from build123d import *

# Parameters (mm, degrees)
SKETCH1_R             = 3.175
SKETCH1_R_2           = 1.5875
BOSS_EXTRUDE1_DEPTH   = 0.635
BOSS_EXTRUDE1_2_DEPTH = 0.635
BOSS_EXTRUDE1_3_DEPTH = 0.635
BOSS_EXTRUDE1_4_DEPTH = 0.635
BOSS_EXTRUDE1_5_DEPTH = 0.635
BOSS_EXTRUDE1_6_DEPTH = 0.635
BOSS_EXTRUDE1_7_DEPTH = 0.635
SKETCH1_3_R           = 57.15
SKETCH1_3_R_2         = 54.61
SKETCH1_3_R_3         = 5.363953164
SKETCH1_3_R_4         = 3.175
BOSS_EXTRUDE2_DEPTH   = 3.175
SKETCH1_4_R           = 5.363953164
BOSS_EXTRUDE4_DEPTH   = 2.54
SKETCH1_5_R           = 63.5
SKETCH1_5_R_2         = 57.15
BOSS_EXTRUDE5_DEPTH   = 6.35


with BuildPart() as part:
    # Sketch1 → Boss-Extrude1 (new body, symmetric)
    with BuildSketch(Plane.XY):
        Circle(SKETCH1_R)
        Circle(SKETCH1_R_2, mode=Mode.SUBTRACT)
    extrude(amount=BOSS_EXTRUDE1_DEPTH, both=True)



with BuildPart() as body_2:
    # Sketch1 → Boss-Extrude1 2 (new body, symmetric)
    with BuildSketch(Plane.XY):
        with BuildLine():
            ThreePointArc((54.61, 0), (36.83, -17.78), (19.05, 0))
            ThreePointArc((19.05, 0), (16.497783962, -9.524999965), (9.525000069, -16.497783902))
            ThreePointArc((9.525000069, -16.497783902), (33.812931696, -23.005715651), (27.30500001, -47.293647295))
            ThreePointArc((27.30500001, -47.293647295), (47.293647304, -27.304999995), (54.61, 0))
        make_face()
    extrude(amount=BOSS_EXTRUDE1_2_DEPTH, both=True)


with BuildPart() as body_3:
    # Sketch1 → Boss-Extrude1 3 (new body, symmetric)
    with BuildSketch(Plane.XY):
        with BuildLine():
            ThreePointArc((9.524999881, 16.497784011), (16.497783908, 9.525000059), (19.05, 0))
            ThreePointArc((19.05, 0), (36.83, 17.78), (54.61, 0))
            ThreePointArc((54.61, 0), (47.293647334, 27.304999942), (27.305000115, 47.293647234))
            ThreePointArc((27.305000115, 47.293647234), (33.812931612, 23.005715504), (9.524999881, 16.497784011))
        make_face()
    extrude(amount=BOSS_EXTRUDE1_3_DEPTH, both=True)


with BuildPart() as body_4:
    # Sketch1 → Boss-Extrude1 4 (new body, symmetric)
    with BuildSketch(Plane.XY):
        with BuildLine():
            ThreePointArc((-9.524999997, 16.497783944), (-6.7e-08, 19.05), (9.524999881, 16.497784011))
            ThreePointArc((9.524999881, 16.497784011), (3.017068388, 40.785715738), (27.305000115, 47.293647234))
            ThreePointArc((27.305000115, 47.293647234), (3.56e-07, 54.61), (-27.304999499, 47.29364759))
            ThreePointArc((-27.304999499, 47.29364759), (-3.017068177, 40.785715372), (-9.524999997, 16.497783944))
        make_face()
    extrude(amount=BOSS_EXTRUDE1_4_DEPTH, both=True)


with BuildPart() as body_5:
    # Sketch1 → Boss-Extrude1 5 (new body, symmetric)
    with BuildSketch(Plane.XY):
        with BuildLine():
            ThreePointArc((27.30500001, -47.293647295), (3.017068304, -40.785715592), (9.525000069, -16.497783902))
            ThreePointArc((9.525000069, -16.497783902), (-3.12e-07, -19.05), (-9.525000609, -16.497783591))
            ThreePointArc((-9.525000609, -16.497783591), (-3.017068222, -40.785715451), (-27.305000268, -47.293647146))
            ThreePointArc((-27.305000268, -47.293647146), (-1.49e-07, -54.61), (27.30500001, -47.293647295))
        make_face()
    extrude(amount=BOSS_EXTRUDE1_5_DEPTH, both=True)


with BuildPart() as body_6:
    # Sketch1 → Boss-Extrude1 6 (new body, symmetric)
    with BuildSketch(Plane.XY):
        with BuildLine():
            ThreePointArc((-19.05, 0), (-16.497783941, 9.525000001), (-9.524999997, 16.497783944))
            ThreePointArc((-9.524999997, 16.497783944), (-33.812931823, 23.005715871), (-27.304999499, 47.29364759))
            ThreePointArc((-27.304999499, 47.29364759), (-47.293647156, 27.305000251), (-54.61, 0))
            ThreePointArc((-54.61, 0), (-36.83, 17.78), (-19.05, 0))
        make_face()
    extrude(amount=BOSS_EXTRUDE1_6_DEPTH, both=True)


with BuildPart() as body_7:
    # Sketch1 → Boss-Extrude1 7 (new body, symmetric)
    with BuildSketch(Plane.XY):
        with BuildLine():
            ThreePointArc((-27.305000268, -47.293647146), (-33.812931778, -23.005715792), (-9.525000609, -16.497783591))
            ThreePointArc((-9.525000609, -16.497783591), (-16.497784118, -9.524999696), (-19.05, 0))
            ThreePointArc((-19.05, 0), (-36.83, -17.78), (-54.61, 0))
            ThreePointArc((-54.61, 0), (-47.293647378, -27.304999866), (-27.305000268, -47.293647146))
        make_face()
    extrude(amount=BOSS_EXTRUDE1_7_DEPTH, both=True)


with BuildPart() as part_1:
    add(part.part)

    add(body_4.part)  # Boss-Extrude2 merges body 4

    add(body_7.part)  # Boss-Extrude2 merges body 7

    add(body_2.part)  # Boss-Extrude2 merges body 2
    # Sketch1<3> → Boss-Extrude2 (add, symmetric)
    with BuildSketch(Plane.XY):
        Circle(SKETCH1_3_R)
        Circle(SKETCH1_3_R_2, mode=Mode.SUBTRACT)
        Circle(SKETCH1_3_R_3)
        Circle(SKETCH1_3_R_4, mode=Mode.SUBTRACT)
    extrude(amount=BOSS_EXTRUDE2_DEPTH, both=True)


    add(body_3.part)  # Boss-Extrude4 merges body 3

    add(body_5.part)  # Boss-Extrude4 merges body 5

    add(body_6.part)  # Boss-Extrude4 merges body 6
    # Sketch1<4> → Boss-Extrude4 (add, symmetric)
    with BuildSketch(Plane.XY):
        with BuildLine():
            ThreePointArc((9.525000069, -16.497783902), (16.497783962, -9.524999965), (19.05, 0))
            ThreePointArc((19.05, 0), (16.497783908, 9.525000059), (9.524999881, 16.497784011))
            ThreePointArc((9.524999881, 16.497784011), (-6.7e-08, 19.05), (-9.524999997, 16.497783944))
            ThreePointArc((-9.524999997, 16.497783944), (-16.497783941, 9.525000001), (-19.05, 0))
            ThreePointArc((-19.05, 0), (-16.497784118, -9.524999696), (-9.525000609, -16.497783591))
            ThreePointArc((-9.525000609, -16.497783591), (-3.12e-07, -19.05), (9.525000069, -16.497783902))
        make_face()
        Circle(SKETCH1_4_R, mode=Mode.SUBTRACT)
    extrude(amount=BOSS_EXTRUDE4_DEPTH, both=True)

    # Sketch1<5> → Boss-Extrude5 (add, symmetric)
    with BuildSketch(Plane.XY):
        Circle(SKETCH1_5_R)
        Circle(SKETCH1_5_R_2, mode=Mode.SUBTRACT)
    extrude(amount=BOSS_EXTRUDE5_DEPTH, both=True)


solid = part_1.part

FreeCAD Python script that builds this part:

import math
import FreeCAD as App
import Part
import Sketcher
from FreeCAD import Vector
Q = App.Units.Quantity

doc = App.newDocument("Part")
params = doc.addObject("Spreadsheet::Sheet", "Params")
for row, (alias, value) in enumerate([
    ("sketch1_diameter", "0.25 in"),
    ("sketch1_diameter2", "0.125 in"),
    ("pad1_length", "0.05 in"),
    ("sketch2_radius", "0.7 in"),
    ("sketch2_radius2", "0.75 in"),
    ("pad2_length", "0.05 in"),
    ("sketch3_radius", "0.7 in"),
    ("sketch3_radius2", "0.75 in"),
    ("pad3_length", "0.05 in"),
    ("sketch4_radius", "0.7 in"),
    ("sketch4_radius2", "0.75 in"),
    ("pad4_length", "0.05 in"),
    ("sketch5_radius", "0.7 in"),
    ("sketch5_radius2", "0.75 in"),
    ("pad5_length", "0.05 in"),
    ("sketch6_radius", "0.7 in"),
    ("sketch6_radius2", "0.75 in"),
    ("pad6_length", "0.05 in"),
    ("sketch7_radius", "0.7 in"),
    ("sketch7_radius2", "0.75 in"),
    ("pad7_length", "0.05 in"),
    ("sketch8_diameter", "4.5 in"),
    ("sketch8_diameter2", "4.3 in"),
    ("sketch8_diameter3", "0.25 in"),
    ("pad8_length", "0.25 in"),
    ("sketch9_radius", "0.75 in"),
    ("pad9_length", "0.2 in"),
    ("sketch10_diameter", "5 in"),
    ("sketch10_diameter2", "4.5 in"),
    ("pad10_length", "0.5 in"),
], start=1):
    params.set(f"A{row}", alias)
    params.set(f"B{row}", "=" + value)
    params.setAlias(f"B{row}", alias)

body = doc.addObject("PartDesign::Body", "Body")

# Sketch on XY plane
sketch1 = doc.addObject("Sketcher::SketchObject", "Sketch")
body.addObject(sketch1)
sketch1.AttachmentSupport = (doc.XY_Plane, [""])
sketch1.MapMode = "FlatFace"
sketch1.addGeometry(Part.Circle(Vector(0, 0, 0), Vector(0, 0, 1), 3.2), False)
sketch1.addGeometry(Part.Circle(Vector(0, 0, 0), Vector(0, 0, 1), 1.6), False)
sketch1.addConstraint(Sketcher.Constraint("Coincident", 0, 3, -1, 1))
sketch1.addConstraint(Sketcher.Constraint("Coincident", 1, 3, -1, 1))
sketch1.addConstraint(Sketcher.Constraint("Diameter", 0, Q("0.25 in")))
sketch1.addConstraint(Sketcher.Constraint("Diameter", 1, Q("0.125 in")))
sketch1.setExpression("Constraints[2]", "Params.sketch1_diameter")
sketch1.setExpression("Constraints[3]", "Params.sketch1_diameter2")
pad1 = doc.addObject("PartDesign::Pad", "Pad")
body.addObject(pad1)
pad1.Profile = sketch1
pad1.setExpression("Length", "Params.pad1_length")
pad1.Midplane = True
body2 = doc.addObject("PartDesign::Body", "Body001")

# Sketch on XY plane
sketch2 = doc.addObject("Sketcher::SketchObject", "Sketch001")
body2.addObject(sketch2)
sketch2.AttachmentSupport = (doc.getObject("XY_Plane001"), [""])
sketch2.MapMode = "FlatFace"
sketch2.addGeometry(Part.ArcOfCircle(Part.Circle(Vector(37, 0, 0), Vector(0, 0, 1), 18), math.radians(180), math.radians(360)), False)
sketch2.addGeometry(Part.ArcOfCircle(Part.Circle(Vector(0, 0, 0), Vector(0, 0, 1), 19), math.radians(-60), math.radians(0)), False)
sketch2.addGeometry(Part.ArcOfCircle(Part.Circle(Vector(18, -32, 0), Vector(0, 0, 1), 18), math.radians(-60), math.radians(120)), False)
sketch2.addGeometry(Part.ArcOfCircle(Part.Circle(Vector(0, 0, 0), Vector(0, 0, 1), 55), math.radians(-60), math.radians(0)), False)
sketch2.addConstraint(Sketcher.Constraint("Tangent", 0, 1, 1, 2))
sketch2.addConstraint(Sketcher.Constraint("Tangent", 1, 1, 2, 2))
sketch2.addConstraint(Sketcher.Constraint("Tangent", 2, 1, 3, 1))
sketch2.addConstraint(Sketcher.Constraint("Tangent", 3, 2, 0, 2))
sketch2.addConstraint(Sketcher.Constraint("Coincident", 1, 3, -1, 1))
sketch2.addConstraint(Sketcher.Constraint("Coincident", 3, 3, -1, 1))
sketch2.addConstraint(Sketcher.Constraint("PointOnObject", 0, 3, -1))
sketch2.addConstraint(Sketcher.Constraint("Radius", 0, Q("0.7 in")))
sketch2.addConstraint(Sketcher.Constraint("Radius", 1, Q("0.75 in")))
sketch2.addConstraint(Sketcher.Constraint("DistanceX", 1, 1, 2, 1, Q("0.7 in")))
sketch2.setExpression("Constraints[7]", "Params.sketch2_radius")
sketch2.setExpression("Constraints[8]", "Params.sketch2_radius2")
pad2 = doc.addObject("PartDesign::Pad", "Pad001")
body2.addObject(pad2)
pad2.Profile = sketch2
pad2.setExpression("Length", "Params.pad2_length")
pad2.Midplane = True
body3 = doc.addObject("PartDesign::Body", "Body002")

# Sketch on XY plane
sketch3 = doc.addObject("Sketcher::SketchObject", "Sketch002")
body3.addObject(sketch3)
sketch3.AttachmentSupport = (doc.getObject("XY_Plane002"), [""])
sketch3.MapMode = "FlatFace"
sketch3.addGeometry(Part.ArcOfCircle(Part.Circle(Vector(0, 0, 0), Vector(0, 0, 1), 19), math.radians(0), math.radians(60)), False)
sketch3.addGeometry(Part.ArcOfCircle(Part.Circle(Vector(37, 0, 0), Vector(0, 0, 1), 18), math.radians(0), math.radians(180)), False)
sketch3.addGeometry(Part.ArcOfCircle(Part.Circle(Vector(0, 0, 0), Vector(0, 0, 1), 55), math.radians(0), math.radians(60)), False)
sketch3.addGeometry(Part.ArcOfCircle(Part.Circle(Vector(18, 32, 0), Vector(0, 0, 1), 18), math.radians(-120), math.radians(60)), False)
sketch3.addConstraint(Sketcher.Constraint("Tangent", 0, 1, 1, 2))
sketch3.addConstraint(Sketcher.Constraint("Tangent", 1, 1, 2, 1))
sketch3.addConstraint(Sketcher.Constraint("Tangent", 2, 2, 3, 2))
sketch3.addConstraint(Sketcher.Constraint("Tangent", 3, 1, 0, 2))
sketch3.addConstraint(Sketcher.Constraint("Coincident", 0, 3, -1, 1))
sketch3.addConstraint(Sketcher.Constraint("Coincident", 2, 3, -1, 1))
sketch3.addConstraint(Sketcher.Constraint("PointOnObject", 1, 3, -1))
sketch3.addConstraint(Sketcher.Constraint("Radius", 1, Q("0.7 in")))
sketch3.addConstraint(Sketcher.Constraint("Radius", 0, Q("0.75 in")))
sketch3.addConstraint(Sketcher.Constraint("DistanceX", 3, 3, 2, 2, Q("0.35 in")))
sketch3.setExpression("Constraints[7]", "Params.sketch3_radius")
sketch3.setExpression("Constraints[8]", "Params.sketch3_radius2")
pad3 = doc.addObject("PartDesign::Pad", "Pad002")
body3.addObject(pad3)
pad3.Profile = sketch3
pad3.setExpression("Length", "Params.pad3_length")
pad3.Midplane = True
body4 = doc.addObject("PartDesign::Body", "Body003")

# Sketch on XY plane
sketch4 = doc.addObject("Sketcher::SketchObject", "Sketch003")
body4.addObject(sketch4)
sketch4.AttachmentSupport = (doc.getObject("XY_Plane003"), [""])
sketch4.MapMode = "FlatFace"
sketch4.addGeometry(Part.ArcOfCircle(Part.Circle(Vector(0, 0, 0), Vector(0, 0, 1), 19), math.radians(60), math.radians(120)), False)
sketch4.addGeometry(Part.ArcOfCircle(Part.Circle(Vector(18, 32, 0), Vector(0, 0, 1), 18), math.radians(60), math.radians(240)), False)
sketch4.addGeometry(Part.ArcOfCircle(Part.Circle(Vector(0, 0, 0), Vector(0, 0, 1), 55), math.radians(60), math.radians(120)), False)
sketch4.addGeometry(Part.ArcOfCircle(Part.Circle(Vector(-18, 32, 0), Vector(0, 0, 1), 18), math.radians(-60), math.radians(120)), False)
sketch4.addConstraint(Sketcher.Constraint("Tangent", 0, 1, 1, 2))
sketch4.addConstraint(Sketcher.Constraint("Tangent", 1, 1, 2, 1))
sketch4.addConstraint(Sketcher.Constraint("Tangent", 2, 2, 3, 2))
sketch4.addConstraint(Sketcher.Constraint("Tangent", 3, 1, 0, 2))
sketch4.addConstraint(Sketcher.Constraint("Coincident", 0, 3, -1, 1))
sketch4.addConstraint(Sketcher.Constraint("Coincident", 2, 3, -1, 1))
sketch4.addConstraint(Sketcher.Constraint("Horizontal", 1, 3, 3, 3))
sketch4.addConstraint(Sketcher.Constraint("Radius", 1, Q("0.7 in")))
sketch4.addConstraint(Sketcher.Constraint("Radius", 0, Q("0.75 in")))
sketch4.addConstraint(Sketcher.Constraint("DistanceX", 3, 3, 0, 1, Q("1.1 in")))
sketch4.setExpression("Constraints[7]", "Params.sketch4_radius")
sketch4.setExpression("Constraints[8]", "Params.sketch4_radius2")
pad4 = doc.addObject("PartDesign::Pad", "Pad003")
body4.addObject(pad4)
pad4.Profile = sketch4
pad4.setExpression("Length", "Params.pad4_length")
pad4.Midplane = True
body5 = doc.addObject("PartDesign::Body", "Body004")

# Sketch on XY plane
sketch5 = doc.addObject("Sketcher::SketchObject", "Sketch004")
body5.addObject(sketch5)
sketch5.AttachmentSupport = (doc.getObject("XY_Plane004"), [""])
sketch5.MapMode = "FlatFace"
sketch5.addGeometry(Part.ArcOfCircle(Part.Circle(Vector(18, -32, 0), Vector(0, 0, 1), 18), math.radians(120), math.radians(300)), False)
sketch5.addGeometry(Part.ArcOfCircle(Part.Circle(Vector(0, 0, 0), Vector(0, 0, 1), 19), math.radians(-120), math.radians(-60)), False)
sketch5.addGeometry(Part.ArcOfCircle(Part.Circle(Vector(-18, -32, 0), Vector(0, 0, 1), 18), math.radians(-120), math.radians(60)), False)
sketch5.addGeometry(Part.ArcOfCircle(Part.Circle(Vector(0, 0, 0), Vector(0, 0, 1), 55), math.radians(-120), math.radians(-60)), False)
sketch5.addConstraint(Sketcher.Constraint("Tangent", 0, 1, 1, 2))
sketch5.addConstraint(Sketcher.Constraint("Tangent", 1, 1, 2, 2))
sketch5.addConstraint(Sketcher.Constraint("Tangent", 2, 1, 3, 1))
sketch5.addConstraint(Sketcher.Constraint("Tangent", 3, 2, 0, 2))
sketch5.addConstraint(Sketcher.Constraint("Coincident", 1, 3, -1, 1))
sketch5.addConstraint(Sketcher.Constraint("Coincident", 3, 3, -1, 1))
sketch5.addConstraint(Sketcher.Constraint("Horizontal", 0, 3, 2, 3))
sketch5.addConstraint(Sketcher.Constraint("Radius", 0, Q("0.7 in")))
sketch5.addConstraint(Sketcher.Constraint("Radius", 1, Q("0.75 in")))
sketch5.addConstraint(Sketcher.Constraint("DistanceX", 2, 3, 0, 1, Q("1.1 in")))
sketch5.setExpression("Constraints[7]", "Params.sketch5_radius")
sketch5.setExpression("Constraints[8]", "Params.sketch5_radius2")
pad5 = doc.addObject("PartDesign::Pad", "Pad004")
body5.addObject(pad5)
pad5.Profile = sketch5
pad5.setExpression("Length", "Params.pad5_length")
pad5.Midplane = True
body6 = doc.addObject("PartDesign::Body", "Body005")

# Sketch on XY plane
sketch6 = doc.addObject("Sketcher::SketchObject", "Sketch005")
body6.addObject(sketch6)
sketch6.AttachmentSupport = (doc.getObject("XY_Plane005"), [""])
sketch6.MapMode = "FlatFace"
sketch6.addGeometry(Part.ArcOfCircle(Part.Circle(Vector(0, 0, 0), Vector(0, 0, 1), 19), math.radians(120), math.radians(180)), False)
sketch6.addGeometry(Part.ArcOfCircle(Part.Circle(Vector(-18, 32, 0), Vector(0, 0, 1), 18), math.radians(120), math.radians(300)), False)
sketch6.addGeometry(Part.ArcOfCircle(Part.Circle(Vector(0, 0, 0), Vector(0, 0, 1), 55), math.radians(120), math.radians(180)), False)
sketch6.addGeometry(Part.ArcOfCircle(Part.Circle(Vector(-37, 0, 0), Vector(0, 0, 1), 18), math.radians(0), math.radians(180)), False)
sketch6.addConstraint(Sketcher.Constraint("Tangent", 0, 1, 1, 2))
sketch6.addConstraint(Sketcher.Constraint("Tangent", 1, 1, 2, 1))
sketch6.addConstraint(Sketcher.Constraint("Tangent", 2, 2, 3, 2))
sketch6.addConstraint(Sketcher.Constraint("Tangent", 3, 1, 0, 2))
sketch6.addConstraint(Sketcher.Constraint("Coincident", 0, 3, -1, 1))
sketch6.addConstraint(Sketcher.Constraint("Coincident", 2, 3, -1, 1))
sketch6.addConstraint(Sketcher.Constraint("PointOnObject", 3, 3, -1))
sketch6.addConstraint(Sketcher.Constraint("Radius", 1, Q("0.7 in")))
sketch6.addConstraint(Sketcher.Constraint("Radius", 0, Q("0.75 in")))
sketch6.addConstraint(Sketcher.Constraint("DistanceX", 1, 1, 0, 1, Q("0.7 in")))
sketch6.setExpression("Constraints[7]", "Params.sketch6_radius")
sketch6.setExpression("Constraints[8]", "Params.sketch6_radius2")
pad6 = doc.addObject("PartDesign::Pad", "Pad005")
body6.addObject(pad6)
pad6.Profile = sketch6
pad6.setExpression("Length", "Params.pad6_length")
pad6.Midplane = True
body7 = doc.addObject("PartDesign::Body", "Body006")

# Sketch on XY plane
sketch7 = doc.addObject("Sketcher::SketchObject", "Sketch006")
body7.addObject(sketch7)
sketch7.AttachmentSupport = (doc.getObject("XY_Plane006"), [""])
sketch7.MapMode = "FlatFace"
sketch7.addGeometry(Part.ArcOfCircle(Part.Circle(Vector(-18, -32, 0), Vector(0, 0, 1), 18), math.radians(60), math.radians(240)), False)
sketch7.addGeometry(Part.ArcOfCircle(Part.Circle(Vector(0, 0, 0), Vector(0, 0, 1), 19), math.radians(180), math.radians(240)), False)
sketch7.addGeometry(Part.ArcOfCircle(Part.Circle(Vector(-37, 0, 0), Vector(0, 0, 1), 18), math.radians(180), math.radians(360)), False)
sketch7.addGeometry(Part.ArcOfCircle(Part.Circle(Vector(0, 0, 0), Vector(0, 0, 1), 55), math.radians(180), math.radians(240)), False)
sketch7.addConstraint(Sketcher.Constraint("Tangent", 0, 1, 1, 2))
sketch7.addConstraint(Sketcher.Constraint("Tangent", 1, 1, 2, 2))
sketch7.addConstraint(Sketcher.Constraint("Tangent", 2, 1, 3, 1))
sketch7.addConstraint(Sketcher.Constraint("Tangent", 3, 2, 0, 2))
sketch7.addConstraint(Sketcher.Constraint("Coincident", 1, 3, -1, 1))
sketch7.addConstraint(Sketcher.Constraint("Coincident", 3, 3, -1, 1))
sketch7.addConstraint(Sketcher.Constraint("PointOnObject", 2, 3, -1))
sketch7.addConstraint(Sketcher.Constraint("Radius", 0, Q("0.7 in")))
sketch7.addConstraint(Sketcher.Constraint("Radius", 1, Q("0.75 in")))
sketch7.addConstraint(Sketcher.Constraint("DistanceX", 3, 2, 0, 1, Q("0.7 in")))
sketch7.setExpression("Constraints[7]", "Params.sketch7_radius")
sketch7.setExpression("Constraints[8]", "Params.sketch7_radius2")
pad7 = doc.addObject("PartDesign::Pad", "Pad006")
body7.addObject(pad7)
pad7.Profile = sketch7
pad7.setExpression("Length", "Params.pad7_length")
pad7.Midplane = True
body.AllowCompound = True
doc.recompute()

boolean = doc.addObject("PartDesign::Boolean", "Boolean")
body.addObject(boolean)
boolean.Type = "Fuse"
boolean.addObjects([body4])
doc.recompute()

boolean2 = doc.addObject("PartDesign::Boolean", "Boolean001")
body.addObject(boolean2)
boolean2.Type = "Fuse"
boolean2.addObjects([body7])
doc.recompute()

boolean3 = doc.addObject("PartDesign::Boolean", "Boolean002")
body.addObject(boolean3)
boolean3.Type = "Fuse"
boolean3.addObjects([body2])

# Sketch on XY plane
sketch8 = doc.addObject("Sketcher::SketchObject", "Sketch007")
body.addObject(sketch8)
sketch8.AttachmentSupport = (doc.XY_Plane, [""])
sketch8.MapMode = "FlatFace"
sketch8.addGeometry(Part.Circle(Vector(0, 0, 0), Vector(0, 0, 1), 57.1), False)
sketch8.addGeometry(Part.Circle(Vector(0, 0, 0), Vector(0, 0, 1), 54.6), False)
sketch8.addGeometry(Part.Circle(Vector(0, 0, 0), Vector(0, 0, 1), 5.4), False)
sketch8.addGeometry(Part.Circle(Vector(0, 0, 0), Vector(0, 0, 1), 3.2), False)
sketch8.addConstraint(Sketcher.Constraint("Coincident", 0, 3, -1, 1))
sketch8.addConstraint(Sketcher.Constraint("Coincident", 1, 3, -1, 1))
sketch8.addConstraint(Sketcher.Constraint("Coincident", 2, 3, -1, 1))
sketch8.addConstraint(Sketcher.Constraint("Coincident", 3, 3, -1, 1))
sketch8.addConstraint(Sketcher.Constraint("Diameter", 0, Q("4.5 in")))
sketch8.addConstraint(Sketcher.Constraint("Diameter", 1, Q("4.3 in")))
sketch8.addConstraint(Sketcher.Constraint("Diameter", 3, Q("0.25 in")))
sketch8.addConstraint(Sketcher.Constraint("Diameter", 2, Q("10.727906 mm")))
sketch8.setExpression("Constraints[4]", "Params.sketch8_diameter")
sketch8.setExpression("Constraints[5]", "Params.sketch8_diameter2")
sketch8.setExpression("Constraints[6]", "Params.sketch8_diameter3")
pad8 = doc.addObject("PartDesign::Pad", "Pad007")
body.addObject(pad8)
pad8.Profile = sketch8
pad8.setExpression("Length", "Params.pad8_length")
pad8.Midplane = True
doc.recompute()

boolean4 = doc.addObject("PartDesign::Boolean", "Boolean003")
body.addObject(boolean4)
boolean4.Type = "Fuse"
boolean4.addObjects([body3])
doc.recompute()

boolean5 = doc.addObject("PartDesign::Boolean", "Boolean004")
body.addObject(boolean5)
boolean5.Type = "Fuse"
boolean5.addObjects([body5])
doc.recompute()

boolean6 = doc.addObject("PartDesign::Boolean", "Boolean005")
body.addObject(boolean6)
boolean6.Type = "Fuse"
boolean6.addObjects([body6])

# Sketch on XY plane
sketch9 = doc.addObject("Sketcher::SketchObject", "Sketch008")
body.addObject(sketch9)
sketch9.AttachmentSupport = (doc.XY_Plane, [""])
sketch9.MapMode = "FlatFace"
sketch9.addGeometry(Part.ArcOfCircle(Part.Circle(Vector(0, 0, 0), Vector(0, 0, 1), 19), math.radians(-60), math.radians(0)), False)
sketch9.addGeometry(Part.ArcOfCircle(Part.Circle(Vector(0, 0, 0), Vector(0, 0, 1), 19), math.radians(0), math.radians(60)), False)
sketch9.addGeometry(Part.ArcOfCircle(Part.Circle(Vector(0, 0, 0), Vector(0, 0, 1), 19), math.radians(60), math.radians(120)), False)
sketch9.addGeometry(Part.ArcOfCircle(Part.Circle(Vector(0, 0, 0), Vector(0, 0, 1), 19), math.radians(120), math.radians(180)), False)
sketch9.addGeometry(Part.ArcOfCircle(Part.Circle(Vector(0, 0, 0), Vector(0, 0, 1), 19), math.radians(180), math.radians(240)), False)
sketch9.addGeometry(Part.ArcOfCircle(Part.Circle(Vector(0, 0, 0), Vector(0, 0, 1), 19), math.radians(-120), math.radians(-60)), False)
sketch9.addGeometry(Part.Circle(Vector(0, 0, 0), Vector(0, 0, 1), 5), False)
sketch9.addConstraint(Sketcher.Constraint("Tangent", 0, 2, 1, 1))
sketch9.addConstraint(Sketcher.Constraint("Tangent", 1, 2, 2, 1))
sketch9.addConstraint(Sketcher.Constraint("Tangent", 2, 2, 3, 1))
sketch9.addConstraint(Sketcher.Constraint("Tangent", 3, 2, 4, 1))
sketch9.addConstraint(Sketcher.Constraint("Tangent", 4, 2, 5, 1))
sketch9.addConstraint(Sketcher.Constraint("Tangent", 5, 2, 0, 1))
sketch9.addConstraint(Sketcher.Constraint("Coincident", 0, 3, -1, 1))
sketch9.addConstraint(Sketcher.Constraint("Coincident", 2, 3, -1, 1))
sketch9.addConstraint(Sketcher.Constraint("Coincident", 6, 3, -1, 1))
sketch9.addConstraint(Sketcher.Constraint("Equal", 2, 3))
sketch9.addConstraint(Sketcher.Constraint("PointOnObject", 0, 2, -1))
sketch9.addConstraint(Sketcher.Constraint("PointOnObject", 3, 2, -1))
sketch9.addConstraint(Sketcher.Constraint("Horizontal", 1, 2, 2, 2))
sketch9.addConstraint(Sketcher.Constraint("Horizontal", 4, 2, 5, 2))
sketch9.addConstraint(Sketcher.Constraint("Vertical", 2, 2, 4, 2))
sketch9.addConstraint(Sketcher.Constraint("Radius", 0, Q("0.75 in")))
sketch9.addConstraint(Sketcher.Constraint("DistanceX", 2, 2, 1, 2, Q("0.75 in")))
sketch9.addConstraint(Sketcher.Constraint("Diameter", 6, Q("10.727906 mm")))
sketch9.setExpression("Constraints[15]", "Params.sketch9_radius")
pad9 = doc.addObject("PartDesign::Pad", "Pad008")
body.addObject(pad9)
pad9.Profile = sketch9
pad9.setExpression("Length", "Params.pad9_length")
pad9.Midplane = True

# Sketch on XY plane
sketch10 = doc.addObject("Sketcher::SketchObject", "Sketch009")
body.addObject(sketch10)
sketch10.AttachmentSupport = (doc.XY_Plane, [""])
sketch10.MapMode = "FlatFace"
sketch10.addGeometry(Part.Circle(Vector(0, 0, 0), Vector(0, 0, 1), 64), False)
sketch10.addGeometry(Part.Circle(Vector(0, 0, 0), Vector(0, 0, 1), 57), False)
sketch10.addConstraint(Sketcher.Constraint("Coincident", 0, 3, -1, 1))
sketch10.addConstraint(Sketcher.Constraint("Coincident", 1, 3, -1, 1))
sketch10.addConstraint(Sketcher.Constraint("Diameter", 0, Q("5 in")))
sketch10.addConstraint(Sketcher.Constraint("Diameter", 1, Q("4.5 in")))
sketch10.setExpression("Constraints[2]", "Params.sketch10_diameter")
sketch10.setExpression("Constraints[3]", "Params.sketch10_diameter2")
pad10 = doc.addObject("PartDesign::Pad", "Pad009")
body.addObject(pad10)
pad10.Profile = sketch10
pad10.setExpression("Length", "Params.pad10_length")
pad10.Midplane = True

doc.recompute()
